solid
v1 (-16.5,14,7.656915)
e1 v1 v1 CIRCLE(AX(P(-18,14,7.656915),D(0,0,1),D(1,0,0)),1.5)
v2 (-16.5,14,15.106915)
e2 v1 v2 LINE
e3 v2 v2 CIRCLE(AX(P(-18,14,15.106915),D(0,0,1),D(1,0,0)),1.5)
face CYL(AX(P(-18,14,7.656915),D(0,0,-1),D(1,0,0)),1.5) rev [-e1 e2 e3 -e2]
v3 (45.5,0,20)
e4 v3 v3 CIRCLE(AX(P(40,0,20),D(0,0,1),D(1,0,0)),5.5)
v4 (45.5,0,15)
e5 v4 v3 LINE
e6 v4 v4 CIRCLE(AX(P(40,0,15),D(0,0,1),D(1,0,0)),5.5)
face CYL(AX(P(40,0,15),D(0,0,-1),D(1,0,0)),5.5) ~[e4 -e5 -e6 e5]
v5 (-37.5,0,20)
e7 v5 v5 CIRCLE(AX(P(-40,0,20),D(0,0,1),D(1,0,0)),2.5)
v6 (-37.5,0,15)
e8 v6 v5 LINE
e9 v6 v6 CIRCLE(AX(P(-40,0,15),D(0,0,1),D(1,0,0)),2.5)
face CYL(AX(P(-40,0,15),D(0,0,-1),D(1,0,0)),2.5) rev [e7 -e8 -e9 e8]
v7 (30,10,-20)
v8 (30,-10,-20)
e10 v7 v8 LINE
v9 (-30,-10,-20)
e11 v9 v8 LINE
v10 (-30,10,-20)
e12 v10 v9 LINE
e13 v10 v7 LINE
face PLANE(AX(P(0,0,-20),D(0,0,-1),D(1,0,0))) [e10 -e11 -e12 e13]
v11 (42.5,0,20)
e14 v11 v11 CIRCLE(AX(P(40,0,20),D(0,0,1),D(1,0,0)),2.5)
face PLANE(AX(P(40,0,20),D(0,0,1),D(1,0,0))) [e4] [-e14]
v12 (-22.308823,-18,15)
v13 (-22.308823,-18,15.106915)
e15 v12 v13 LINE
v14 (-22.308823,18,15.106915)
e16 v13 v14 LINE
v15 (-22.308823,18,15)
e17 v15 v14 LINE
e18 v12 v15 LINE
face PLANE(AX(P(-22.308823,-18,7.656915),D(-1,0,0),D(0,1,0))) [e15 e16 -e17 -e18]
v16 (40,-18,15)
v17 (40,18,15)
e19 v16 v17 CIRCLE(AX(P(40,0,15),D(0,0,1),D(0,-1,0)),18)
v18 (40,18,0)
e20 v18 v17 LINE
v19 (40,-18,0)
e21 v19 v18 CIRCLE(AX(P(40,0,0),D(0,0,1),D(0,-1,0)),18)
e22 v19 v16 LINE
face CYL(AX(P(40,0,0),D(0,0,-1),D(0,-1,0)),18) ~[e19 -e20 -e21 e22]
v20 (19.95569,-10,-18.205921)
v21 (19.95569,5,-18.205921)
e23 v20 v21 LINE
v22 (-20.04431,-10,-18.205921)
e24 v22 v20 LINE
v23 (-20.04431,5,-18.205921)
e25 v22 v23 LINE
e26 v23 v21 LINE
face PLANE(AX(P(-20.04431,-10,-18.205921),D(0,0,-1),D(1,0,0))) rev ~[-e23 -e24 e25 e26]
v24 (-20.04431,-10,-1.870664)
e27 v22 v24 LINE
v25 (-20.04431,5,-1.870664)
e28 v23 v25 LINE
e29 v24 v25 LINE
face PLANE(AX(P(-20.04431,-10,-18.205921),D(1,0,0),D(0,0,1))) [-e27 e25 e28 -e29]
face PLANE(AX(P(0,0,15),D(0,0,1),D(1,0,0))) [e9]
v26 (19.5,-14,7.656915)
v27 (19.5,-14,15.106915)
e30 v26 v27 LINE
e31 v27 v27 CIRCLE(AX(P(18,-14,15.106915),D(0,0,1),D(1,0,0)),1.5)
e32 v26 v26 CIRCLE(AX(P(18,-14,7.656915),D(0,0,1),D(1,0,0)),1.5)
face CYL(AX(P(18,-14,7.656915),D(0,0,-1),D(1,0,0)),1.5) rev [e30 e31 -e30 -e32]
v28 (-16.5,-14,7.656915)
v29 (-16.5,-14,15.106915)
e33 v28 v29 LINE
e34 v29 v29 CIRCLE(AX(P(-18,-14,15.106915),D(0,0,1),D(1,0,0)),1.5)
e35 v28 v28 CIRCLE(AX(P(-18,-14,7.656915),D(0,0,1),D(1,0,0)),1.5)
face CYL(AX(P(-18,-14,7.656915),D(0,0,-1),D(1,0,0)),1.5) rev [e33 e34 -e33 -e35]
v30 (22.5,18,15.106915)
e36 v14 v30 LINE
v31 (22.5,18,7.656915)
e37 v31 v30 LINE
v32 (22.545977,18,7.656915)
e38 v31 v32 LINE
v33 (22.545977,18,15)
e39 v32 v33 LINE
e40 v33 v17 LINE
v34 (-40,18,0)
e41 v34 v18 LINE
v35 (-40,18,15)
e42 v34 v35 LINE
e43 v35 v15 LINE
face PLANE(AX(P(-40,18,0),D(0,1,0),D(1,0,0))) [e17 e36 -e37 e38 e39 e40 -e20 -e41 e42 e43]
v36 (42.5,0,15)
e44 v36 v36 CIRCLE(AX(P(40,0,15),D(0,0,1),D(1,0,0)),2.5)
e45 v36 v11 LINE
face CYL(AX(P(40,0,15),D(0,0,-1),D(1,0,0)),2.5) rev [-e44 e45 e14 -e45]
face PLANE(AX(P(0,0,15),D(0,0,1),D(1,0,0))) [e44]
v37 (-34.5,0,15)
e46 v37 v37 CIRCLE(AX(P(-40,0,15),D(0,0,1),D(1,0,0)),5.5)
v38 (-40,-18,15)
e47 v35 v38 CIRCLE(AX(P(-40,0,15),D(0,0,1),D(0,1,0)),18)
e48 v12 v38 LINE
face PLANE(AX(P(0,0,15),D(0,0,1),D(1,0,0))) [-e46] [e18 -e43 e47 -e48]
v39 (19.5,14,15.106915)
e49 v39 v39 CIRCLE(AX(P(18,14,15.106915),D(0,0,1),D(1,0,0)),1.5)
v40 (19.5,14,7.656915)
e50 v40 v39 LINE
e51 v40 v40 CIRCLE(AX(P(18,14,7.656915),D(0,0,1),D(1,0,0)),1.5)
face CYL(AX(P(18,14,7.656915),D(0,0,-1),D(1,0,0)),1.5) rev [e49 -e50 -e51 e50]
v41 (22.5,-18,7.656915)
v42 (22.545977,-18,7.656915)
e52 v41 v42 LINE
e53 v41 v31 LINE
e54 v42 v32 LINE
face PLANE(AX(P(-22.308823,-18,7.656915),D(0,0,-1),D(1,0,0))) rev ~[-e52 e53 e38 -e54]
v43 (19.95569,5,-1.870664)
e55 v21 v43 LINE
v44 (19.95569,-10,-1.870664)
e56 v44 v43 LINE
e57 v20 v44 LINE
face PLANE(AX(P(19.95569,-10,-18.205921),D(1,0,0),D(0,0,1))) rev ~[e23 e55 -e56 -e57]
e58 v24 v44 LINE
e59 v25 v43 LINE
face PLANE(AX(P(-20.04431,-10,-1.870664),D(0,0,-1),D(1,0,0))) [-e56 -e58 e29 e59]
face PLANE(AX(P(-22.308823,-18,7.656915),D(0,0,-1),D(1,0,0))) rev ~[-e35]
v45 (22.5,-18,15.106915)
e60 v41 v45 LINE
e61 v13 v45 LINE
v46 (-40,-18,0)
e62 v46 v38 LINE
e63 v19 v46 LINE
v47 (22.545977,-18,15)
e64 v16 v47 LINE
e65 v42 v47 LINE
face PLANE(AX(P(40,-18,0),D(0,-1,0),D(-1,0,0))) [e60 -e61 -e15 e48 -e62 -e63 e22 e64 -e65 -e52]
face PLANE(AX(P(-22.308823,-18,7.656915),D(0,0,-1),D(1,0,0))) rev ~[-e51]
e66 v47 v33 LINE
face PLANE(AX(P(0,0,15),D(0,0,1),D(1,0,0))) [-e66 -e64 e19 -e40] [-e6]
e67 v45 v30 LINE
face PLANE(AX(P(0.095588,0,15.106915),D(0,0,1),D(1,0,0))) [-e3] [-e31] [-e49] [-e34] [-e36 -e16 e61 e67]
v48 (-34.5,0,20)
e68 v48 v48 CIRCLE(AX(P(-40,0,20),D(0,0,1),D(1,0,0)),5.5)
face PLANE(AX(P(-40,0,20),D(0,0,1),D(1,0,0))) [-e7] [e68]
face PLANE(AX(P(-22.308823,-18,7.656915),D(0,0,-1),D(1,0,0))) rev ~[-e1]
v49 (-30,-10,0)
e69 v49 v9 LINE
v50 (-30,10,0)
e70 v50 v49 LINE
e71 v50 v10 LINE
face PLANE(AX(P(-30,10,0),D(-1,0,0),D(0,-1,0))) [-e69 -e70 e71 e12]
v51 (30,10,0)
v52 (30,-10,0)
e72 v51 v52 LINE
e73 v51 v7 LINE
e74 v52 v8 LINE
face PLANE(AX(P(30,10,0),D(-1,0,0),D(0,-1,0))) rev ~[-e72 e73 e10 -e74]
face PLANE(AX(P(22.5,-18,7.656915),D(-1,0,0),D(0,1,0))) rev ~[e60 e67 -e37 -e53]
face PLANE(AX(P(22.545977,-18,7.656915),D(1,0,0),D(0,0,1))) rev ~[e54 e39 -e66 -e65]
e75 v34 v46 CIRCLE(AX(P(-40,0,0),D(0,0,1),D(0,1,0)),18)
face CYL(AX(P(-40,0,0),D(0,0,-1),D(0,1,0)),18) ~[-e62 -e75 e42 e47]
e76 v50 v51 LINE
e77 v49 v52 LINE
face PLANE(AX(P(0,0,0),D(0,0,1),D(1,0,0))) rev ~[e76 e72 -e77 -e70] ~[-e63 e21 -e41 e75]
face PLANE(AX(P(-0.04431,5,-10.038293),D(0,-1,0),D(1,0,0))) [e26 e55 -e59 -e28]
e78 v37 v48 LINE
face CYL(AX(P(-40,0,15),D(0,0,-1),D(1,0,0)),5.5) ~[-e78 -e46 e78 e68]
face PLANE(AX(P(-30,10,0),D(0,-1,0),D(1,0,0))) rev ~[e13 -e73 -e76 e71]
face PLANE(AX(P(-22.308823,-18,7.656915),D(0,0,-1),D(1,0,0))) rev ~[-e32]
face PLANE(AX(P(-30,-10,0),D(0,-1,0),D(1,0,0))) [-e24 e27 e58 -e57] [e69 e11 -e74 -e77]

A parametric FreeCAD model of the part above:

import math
import FreeCAD as App
import Part
import Sketcher

V = App.Vector
Q = App.Units.Quantity


def add_polygon(sketch, points):
    """Adds a closed chain of lines whose ends are joined by coincident constraints."""
    first, n = sketch.GeometryCount, len(points)
    for a, b in zip(points, points[1:] + points[:1]):
        sketch.addGeometry(Part.LineSegment(App.Vector(*a, 0), App.Vector(*b, 0)), False)
    for i in range(n):
        sketch.addConstraint(Sketcher.Constraint("Coincident", first + i, 2, first + (i + 1) % n, 1))

doc = App.newDocument("Part")
body = doc.addObject("PartDesign::Body", "Body")

# Sketch on XY plane
sketch1 = doc.addObject("Sketcher::SketchObject", "Sketch")
body.addObject(sketch1)
sketch1.AttachmentSupport = (doc.XY_Plane, [""])
sketch1.MapMode = "FlatFace"
sketch1.addGeometry(Part.ArcOfCircle(Part.Circle(V(-40, 0, 0), V(0, 0, 1), 18), math.radians(90), math.radians(270)), False)
sketch1.addGeometry(Part.LineSegment(V(-40, -18, 0), V(40, -18, 0)), False)
sketch1.addGeometry(Part.ArcOfCircle(Part.Circle(V(40, 0, 0), V(0, 0, 1), 18), math.radians(-90), math.radians(90)), False)
sketch1.addGeometry(Part.LineSegment(V(40, 18, 0), V(-40, 18, 0)), False)
sketch1.addConstraint(Sketcher.Constraint("Tangent", 0, 2, 1, 1))
sketch1.addConstraint(Sketcher.Constraint("Tangent", 1, 2, 2, 1))
sketch1.addConstraint(Sketcher.Constraint("Tangent", 2, 2, 3, 1))
sketch1.addConstraint(Sketcher.Constraint("Tangent", 3, 2, 0, 1))
sketch1.addConstraint(Sketcher.Constraint("Horizontal", 1))
sketch1.addConstraint(Sketcher.Constraint("Horizontal", 3))
sketch1.addConstraint(Sketcher.Constraint("Symmetric", 0, 3, 2, 3, -1, 1))
sketch1.addConstraint(Sketcher.Constraint("Radius", 0, Q("18 mm")))
sketch1.addConstraint(Sketcher.Constraint("DistanceX", 1, 1, 1, 2, Q("80 mm")))
pad1 = doc.addObject("PartDesign::Pad", "Pad")
body.addObject(pad1)
pad1.Profile = sketch1
pad1.Length = 15

# Sketch on XZ plane
sketch2 = doc.addObject("Sketcher::SketchObject", "Sketch001")
body.addObject(sketch2)
sketch2.AttachmentSupport = (doc.XZ_Plane, [""])
sketch2.MapMode = "FlatFace"
sketch2.AttachmentOffset = App.Placement(V(0, 0, 18), App.Rotation())
add_polygon(sketch2, [(-22, 32), (-22, 8), (23, 8), (23, 32)])  # lines 0-3
sketch2.addConstraint(Sketcher.Constraint("Vertical", 0))
sketch2.addConstraint(Sketcher.Constraint("Horizontal", 1))
sketch2.addConstraint(Sketcher.Constraint("Vertical", 2))
sketch2.addConstraint(Sketcher.Constraint("Horizontal", 3))
sketch2.addConstraint(Sketcher.Constraint("DistanceX", 1, 1, 1, 2, Q("44.8548 mm")))
sketch2.addConstraint(Sketcher.Constraint("DistanceY", 0, 2, 0, 1, Q("24.142434 mm")))
sketch2.addConstraint(Sketcher.Constraint("DistanceY", -1, 1, 2, 2, Q("31.799349 mm")))
sketch2.addConstraint(Sketcher.Constraint("DistanceX", 0, 2, -1, 1, Q("22.308823 mm")))
pocket1 = doc.addObject("PartDesign::Pocket", "Pocket")
body.addObject(pocket1)
pocket1.Profile = sketch2
pocket1.Length = 36

# Sketch on XY plane
sketch3 = doc.addObject("Sketcher::SketchObject", "Sketch002")
body.addObject(sketch3)
sketch3.AttachmentSupport = (doc.XY_Plane, [""])
sketch3.MapMode = "FlatFace"
sketch3.AttachmentOffset = App.Placement(V(0, 0, 7.656915), App.Rotation())
add_polygon(sketch3, [(-22.3, 18), (-22.3, -18), (22.5, -18), (22.5, 18)])  # lines 0-3
sketch3.addGeometry(Part.Circle(V(-18, -14, 0), V(0, 0, 1), 1.5), False)  # 4
sketch3.addGeometry(Part.Circle(V(18, -14, 0), V(0, 0, 1), 1.5), False)  # 5
sketch3.addGeometry(Part.Circle(V(-18, 14, 0), V(0, 0, 1), 1.5), False)  # 6
sketch3.addGeometry(Part.Circle(V(18, 14, 0), V(0, 0, 1), 1.5), False)  # 7
sketch3.addConstraint(Sketcher.Constraint("Vertical", 0))
sketch3.addConstraint(Sketcher.Constraint("Horizontal", 1))
sketch3.addConstraint(Sketcher.Constraint("Vertical", 2))
sketch3.addConstraint(Sketcher.Constraint("Horizontal", 3))
sketch3.addConstraint(Sketcher.Constraint("Equal", 4, 5))
sketch3.addConstraint(Sketcher.Constraint("Equal", 5, 6))
sketch3.addConstraint(Sketcher.Constraint("Equal", 6, 7))
sketch3.addConstraint(Sketcher.Constraint("Symmetric", 5, 3, 6, 3, -1, 1))
sketch3.addConstraint(Sketcher.Constraint("Symmetric", 4, 3, 7, 3, -1, 1))
sketch3.addConstraint(Sketcher.Constraint("Symmetric", 4, 3, 5, 3, -2))
sketch3.addConstraint(Sketcher.Constraint("Diameter", 4, Q("3 mm")))
sketch3.addConstraint(Sketcher.Constraint("DistanceY", 0, 2, 0, 1, Q("36 mm")))
sketch3.addConstraint(Sketcher.Constraint("DistanceX", 4, 3, -1, 1, Q("18 mm")))
sketch3.addConstraint(Sketcher.Constraint("DistanceY", 4, 3, -1, 1, Q("14 mm")))
sketch3.addConstraint(Sketcher.Constraint("DistanceY", 0, 2, -1, 1, Q("18 mm")))
sketch3.addConstraint(Sketcher.Constraint("DistanceX", -1, 1, 1, 2, Q("22.5 mm")))
sketch3.addConstraint(Sketcher.Constraint("DistanceX", 1, 1, 1, 2, Q("44.808823 mm")))
pad2 = doc.addObject("PartDesign::Pad", "Pad001")
body.addObject(pad2)
pad2.Profile = sketch3
pad2.Length = 7.45

# Sketch on XY plane
sketch4 = doc.addObject("Sketcher::SketchObject", "Sketch003")
body.addObject(sketch4)
sketch4.AttachmentSupport = (doc.XY_Plane, [""])
sketch4.MapMode = "FlatFace"
sketch4.AttachmentOffset = App.Placement(V(0, 0, 15), App.Rotation())
sketch4.addGeometry(Part.Circle(V(-40, 0, 0), V(0, 0, 1), 5.5), False)
sketch4.addGeometry(Part.Circle(V(-40, 0, 0), V(0, 0, 1), 2.5), False)
sketch4.addGeometry(Part.Circle(V(40, 0, 0), V(0, 0, 1), 5.5), False)
sketch4.addGeometry(Part.Circle(V(40, 0, 0), V(0, 0, 1), 2.5), False)
sketch4.addConstraint(Sketcher.Constraint("Coincident", 1, 3, 0, 3))
sketch4.addConstraint(Sketcher.Constraint("Coincident", 3, 3, 2, 3))
sketch4.addConstraint(Sketcher.Constraint("Equal", 0, 2))
sketch4.addConstraint(Sketcher.Constraint("Equal", 1, 3))
sketch4.addConstraint(Sketcher.Constraint("Symmetric", 0, 3, 2, 3, -1, 1))
sketch4.addConstraint(Sketcher.Constraint("PointOnObject", 0, 3, -1))
sketch4.addConstraint(Sketcher.Constraint("Diameter", 0, Q("11 mm")))
sketch4.addConstraint(Sketcher.Constraint("Diameter", 1, Q("5 mm")))
sketch4.addConstraint(Sketcher.Constraint("DistanceX", 0, 3, -1, 1, Q("40 mm")))
pad3 = doc.addObject("PartDesign::Pad", "Pad002")
body.addObject(pad3)
pad3.Profile = sketch4
pad3.Length = 5

# Sketch on XY plane
sketch5 = doc.addObject("Sketcher::SketchObject", "Sketch004")
body.addObject(sketch5)
sketch5.AttachmentSupport = (doc.XY_Plane, [""])
sketch5.MapMode = "FlatFace"
add_polygon(sketch5, [(-30, -10), (-30, 10), (30, 10), (30, -10)])  # lines 0-3
sketch5.addConstraint(Sketcher.Constraint("Vertical", 0))
sketch5.addConstraint(Sketcher.Constraint("Horizontal", 1))
sketch5.addConstraint(Sketcher.Constraint("Vertical", 2))
sketch5.addConstraint(Sketcher.Constraint("Horizontal", 3))
sketch5.addConstraint(Sketcher.Constraint("Symmetric", 0, 2, 2, 2, -1, 1))
sketch5.addConstraint(Sketcher.Constraint("DistanceX", 1, 1, 1, 2, Q("60 mm")))
sketch5.addConstraint(Sketcher.Constraint("DistanceY", 0, 1, 0, 2, Q("20 mm")))
pad4 = doc.addObject("PartDesign::Pad", "Pad003")
body.addObject(pad4)
pad4.Profile = sketch5
pad4.Length = 20
pad4.Reversed = True

# Sketch on XZ plane
sketch6 = doc.addObject("Sketcher::SketchObject", "Sketch005")
body.addObject(sketch6)
sketch6.AttachmentSupport = (doc.XZ_Plane, [""])
sketch6.MapMode = "FlatFace"
sketch6.AttachmentOffset = App.Placement(V(0, 0, 10), App.Rotation())
add_polygon(sketch6, [(-20, -2), (-20, -18), (20, -18), (20, -2)])  # lines 0-3
sketch6.addConstraint(Sketcher.Constraint("Vertical", 0))
sketch6.addConstraint(Sketcher.Constraint("Horizontal", 1))
sketch6.addConstraint(Sketcher.Constraint("Vertical", 2))
sketch6.addConstraint(Sketcher.Constraint("Horizontal", 3))
sketch6.addConstraint(Sketcher.Constraint("DistanceX", 1, 1, 1, 2, Q("40 mm")))
sketch6.addConstraint(Sketcher.Constraint("DistanceY", 0, 2, 0, 1, Q("16.335257 mm")))
sketch6.addConstraint(Sketcher.Constraint("DistanceX", 0, 2, -1, 1, Q("20.04431 mm")))
sketch6.addConstraint(Sketcher.Constraint("DistanceY", 0, 2, -1, 1, Q("18.205921 mm")))
pocket2 = doc.addObject("PartDesign::Pocket", "Pocket001")
body.addObject(pocket2)
pocket2.Profile = sketch6
pocket2.Length = 15

doc.recompute()
